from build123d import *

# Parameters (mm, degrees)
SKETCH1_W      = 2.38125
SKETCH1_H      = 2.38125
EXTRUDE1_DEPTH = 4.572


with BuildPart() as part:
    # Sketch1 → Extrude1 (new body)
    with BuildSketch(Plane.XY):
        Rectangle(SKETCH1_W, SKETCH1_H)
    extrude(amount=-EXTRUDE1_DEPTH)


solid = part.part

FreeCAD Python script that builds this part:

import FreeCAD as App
import Part
import Sketcher

V = App.Vector
Q = App.Units.Quantity


def add_polygon(sketch, points):
    """Adds a closed chain of lines whose ends are joined by coincident constraints."""
    first, n = sketch.GeometryCount, len(points)
    for a, b in zip(points, points[1:] + points[:1]):
        sketch.addGeometry(Part.LineSegment(App.Vector(*a, 0), App.Vector(*b, 0)), False)
    for i in range(n):
        sketch.addConstraint(Sketcher.Constraint("Coincident", first + i, 2, first + (i + 1) % n, 1))

doc = App.newDocument("Part")
body = doc.addObject("PartDesign::Body", "Body")

sketch1 = body.newObject("Sketcher::SketchObject", "Sketch")
sketch1.AttachmentSupport = (doc.getObject("XY_Plane"), [""])
sketch1.MapMode = "FlatFace"
add_polygon(sketch1, [(-1.190625, 1.190625), (-1.190625, -1.190625), (1.190625, -1.190625), (1.190625, 1.190625)])
sketch1.addConstraint([
    Sketcher.Constraint("Vertical", 0),
    Sketcher.Constraint("Horizontal", 1),
    Sketcher.Constraint("Vertical", 2),
    Sketcher.Constraint("Horizontal", 3),
    Sketcher.Constraint("Symmetric", 0, 2, 2, 2, -1, 1),
    Sketcher.Constraint("Equal", 3, 0),
    Sketcher.Constraint("DistanceX", 1, 1, 1, 2, Q("0.09375 in")),
])
pad1 = body.newObject("PartDesign::Pad", "Pad")
pad1.Profile = sketch1
pad1.Length = Q("0.18 in")
pad1.Reversed = True

doc.recompute()
